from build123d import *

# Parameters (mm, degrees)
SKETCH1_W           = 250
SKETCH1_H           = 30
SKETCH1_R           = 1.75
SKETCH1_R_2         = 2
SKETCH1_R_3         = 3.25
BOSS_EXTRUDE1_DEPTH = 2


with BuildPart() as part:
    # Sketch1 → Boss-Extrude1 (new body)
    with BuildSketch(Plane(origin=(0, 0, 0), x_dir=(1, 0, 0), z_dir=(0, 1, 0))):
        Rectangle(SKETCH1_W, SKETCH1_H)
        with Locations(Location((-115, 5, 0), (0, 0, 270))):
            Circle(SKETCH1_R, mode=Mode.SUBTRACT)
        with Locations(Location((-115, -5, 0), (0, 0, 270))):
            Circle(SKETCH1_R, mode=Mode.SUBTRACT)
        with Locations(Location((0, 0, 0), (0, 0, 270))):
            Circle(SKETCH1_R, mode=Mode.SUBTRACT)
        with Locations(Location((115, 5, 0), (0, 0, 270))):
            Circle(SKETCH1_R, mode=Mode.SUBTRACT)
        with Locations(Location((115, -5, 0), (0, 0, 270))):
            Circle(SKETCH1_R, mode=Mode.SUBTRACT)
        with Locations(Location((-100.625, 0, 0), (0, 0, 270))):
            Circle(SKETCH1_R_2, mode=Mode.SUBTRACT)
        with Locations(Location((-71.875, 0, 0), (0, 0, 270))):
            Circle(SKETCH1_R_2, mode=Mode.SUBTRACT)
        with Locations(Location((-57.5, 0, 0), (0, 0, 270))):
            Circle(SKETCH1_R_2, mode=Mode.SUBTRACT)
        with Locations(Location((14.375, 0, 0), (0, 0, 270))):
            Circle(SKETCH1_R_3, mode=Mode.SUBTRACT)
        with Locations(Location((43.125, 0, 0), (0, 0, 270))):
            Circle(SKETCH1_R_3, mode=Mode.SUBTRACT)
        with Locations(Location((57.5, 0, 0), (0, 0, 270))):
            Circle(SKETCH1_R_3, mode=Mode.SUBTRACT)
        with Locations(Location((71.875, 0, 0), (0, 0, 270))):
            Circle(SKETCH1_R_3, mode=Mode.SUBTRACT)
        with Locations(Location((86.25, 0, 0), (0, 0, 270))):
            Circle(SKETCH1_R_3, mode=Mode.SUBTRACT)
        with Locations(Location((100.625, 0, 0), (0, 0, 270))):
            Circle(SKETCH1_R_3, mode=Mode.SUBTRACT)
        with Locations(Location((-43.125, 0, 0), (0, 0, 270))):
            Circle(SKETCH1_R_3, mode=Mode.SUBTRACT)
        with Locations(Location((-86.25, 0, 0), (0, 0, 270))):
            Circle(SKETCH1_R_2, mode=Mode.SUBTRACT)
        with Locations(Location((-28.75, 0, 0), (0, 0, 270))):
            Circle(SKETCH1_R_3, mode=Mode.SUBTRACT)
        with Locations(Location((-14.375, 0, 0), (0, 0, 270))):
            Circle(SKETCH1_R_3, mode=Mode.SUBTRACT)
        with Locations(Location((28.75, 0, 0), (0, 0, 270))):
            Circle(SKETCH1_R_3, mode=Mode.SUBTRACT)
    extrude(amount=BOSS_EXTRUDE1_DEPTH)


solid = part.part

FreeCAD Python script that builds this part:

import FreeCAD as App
import Part
import Sketcher
from FreeCAD import Vector

doc = App.newDocument("Part")
body = doc.addObject("PartDesign::Body", "Body")

sketch1 = body.newObject("Sketcher::SketchObject", "Sketch")
sketch1.AttachmentSupport = (doc.getObject("XZ_Plane"), [""])
sketch1.MapMode = "FlatFace"
sketch1.addGeometry(Part.LineSegment(Vector(-125, -15, 0), Vector(-125, 15, 0)), False)
sketch1.addGeometry(Part.LineSegment(Vector(-125, 15, 0), Vector(125, 15, 0)), False)
sketch1.addGeometry(Part.LineSegment(Vector(125, 15, 0), Vector(125, -15, 0)), False)
sketch1.addGeometry(Part.LineSegment(Vector(125, -15, 0), Vector(-125, -15, 0)), False)
sketch1.addGeometry(Part.Circle(Vector(-115, 5, 0), Vector(0, 0, 1), 1.8), False)
sketch1.addGeometry(Part.Circle(Vector(115, 5, 0), Vector(0, 0, 1), 1.8), False)
sketch1.addGeometry(Part.Circle(Vector(-100.6, 0, 0), Vector(0, 0, 1), 2), False)
sketch1.addGeometry(Part.Circle(Vector(-86.2, 0, 0), Vector(0, 0, 1), 2), False)
sketch1.addGeometry(Part.Circle(Vector(-71.9, 0, 0), Vector(0, 0, 1), 2), False)
sketch1.addGeometry(Part.Circle(Vector(-57.5, 0, 0), Vector(0, 0, 1), 2), False)
sketch1.addGeometry(Part.Circle(Vector(-43.1, 0, 0), Vector(0, 0, 1), 3.2), False)
sketch1.addGeometry(Part.Circle(Vector(-28.8, 0, 0), Vector(0, 0, 1), 3.2), False)
sketch1.addGeometry(Part.Circle(Vector(-14.4, 0, 0), Vector(0, 0, 1), 3.2), False)
sketch1.addGeometry(Part.Circle(Vector(-115, -5, 0), Vector(0, 0, 1), 1.8), False)
sketch1.addGeometry(Part.Circle(Vector(0, 0, 0), Vector(0, 0, 1), 1.8), False)
sketch1.addGeometry(Part.Circle(Vector(14.4, 0, 0), Vector(0, 0, 1), 3.2), False)
sketch1.addGeometry(Part.Circle(Vector(28.8, 0, 0), Vector(0, 0, 1), 3.2), False)
sketch1.addGeometry(Part.Circle(Vector(43.1, 0, 0), Vector(0, 0, 1), 3.2), False)
sketch1.addGeometry(Part.Circle(Vector(57.5, 0, 0), Vector(0, 0, 1), 3.2), False)
sketch1.addGeometry(Part.Circle(Vector(71.9, 0, 0), Vector(0, 0, 1), 3.2), False)
sketch1.addGeometry(Part.Circle(Vector(86.2, 0, 0), Vector(0, 0, 1), 3.2), False)
sketch1.addGeometry(Part.Circle(Vector(100.6, 0, 0), Vector(0, 0, 1), 3.2), False)
sketch1.addGeometry(Part.Circle(Vector(115, -5, 0), Vector(0, 0, 1), 1.8), False)
sketch1.addConstraint(Sketcher.Constraint("Coincident", 0, 2, 1, 1))
sketch1.addConstraint(Sketcher.Constraint("Coincident", 1, 2, 2, 1))
sketch1.addConstraint(Sketcher.Constraint("Coincident", 2, 2, 3, 1))
sketch1.addConstraint(Sketcher.Constraint("Coincident", 3, 2, 0, 1))
sketch1.addConstraint(Sketcher.Constraint("Vertical", 0))
sketch1.addConstraint(Sketcher.Constraint("Horizontal", 1))
sketch1.addConstraint(Sketcher.Constraint("Vertical", 2))
sketch1.addConstraint(Sketcher.Constraint("Horizontal", 3))
sketch1.addConstraint(Sketcher.Constraint("Coincident", 14, 3, -1, 1))
sketch1.addConstraint(Sketcher.Constraint("Equal", 4, 5))
sketch1.addConstraint(Sketcher.Constraint("Equal", 6, 7))
sketch1.addConstraint(Sketcher.Constraint("Equal", 7, 8))
sketch1.addConstraint(Sketcher.Constraint("Equal", 8, 9))
sketch1.addConstraint(Sketcher.Constraint("Equal", 10, 11))
sketch1.addConstraint(Sketcher.Constraint("Equal", 11, 12))
sketch1.addConstraint(Sketcher.Constraint("Equal", 5, 13))
sketch1.addConstraint(Sketcher.Constraint("Equal", 13, 14))
sketch1.addConstraint(Sketcher.Constraint("Equal", 12, 15))
sketch1.addConstraint(Sketcher.Constraint("Equal", 15, 16))
sketch1.addConstraint(Sketcher.Constraint("Equal", 16, 17))
sketch1.addConstraint(Sketcher.Constraint("Equal", 17, 18))
sketch1.addConstraint(Sketcher.Constraint("Equal", 18, 19))
sketch1.addConstraint(Sketcher.Constraint("Equal", 19, 20))
sketch1.addConstraint(Sketcher.Constraint("Equal", 20, 21))
sketch1.addConstraint(Sketcher.Constraint("Equal", 14, 22))
sketch1.addConstraint(Sketcher.Constraint("Symmetric", 5, 3, 13, 3, -1, 1))
sketch1.addConstraint(Sketcher.Constraint("Symmetric", 12, 3, 15, 3, -1, 1))
sketch1.addConstraint(Sketcher.Constraint("Symmetric", 11, 3, 16, 3, -1, 1))
sketch1.addConstraint(Sketcher.Constraint("Symmetric", 10, 3, 17, 3, -1, 1))
sketch1.addConstraint(Sketcher.Constraint("Symmetric", 9, 3, 18, 3, -1, 1))
sketch1.addConstraint(Sketcher.Constraint("Symmetric", 8, 3, 19, 3, -1, 1))
sketch1.addConstraint(Sketcher.Constraint("Symmetric", 7, 3, 20, 3, -1, 1))
sketch1.addConstraint(Sketcher.Constraint("Symmetric", 6, 3, 21, 3, -1, 1))
sketch1.addConstraint(Sketcher.Constraint("Symmetric", 4, 3, 22, 3, -1, 1))
sketch1.addConstraint(Sketcher.Constraint("Symmetric", 0, 2, 2, 2, -1, 1))
sketch1.addConstraint(Sketcher.Constraint("Symmetric", 4, 3, 5, 3, -2))
sketch1.addConstraint(Sketcher.Constraint("PointOnObject", 6, 3, -1))
sketch1.addConstraint(Sketcher.Constraint("PointOnObject", 7, 3, -1))
sketch1.addConstraint(Sketcher.Constraint("PointOnObject", 8, 3, -1))
sketch1.addConstraint(Sketcher.Constraint("PointOnObject", 9, 3, -1))
sketch1.addConstraint(Sketcher.Constraint("PointOnObject", 10, 3, -1))
sketch1.addConstraint(Sketcher.Constraint("PointOnObject", 11, 3, -1))
sketch1.addConstraint(Sketcher.Constraint("PointOnObject", 12, 3, -1))
sketch1.addConstraint(Sketcher.Constraint("Diameter", 6, 4.0))
sketch1.addConstraint(Sketcher.Constraint("Diameter", 4, 3.5))
sketch1.addConstraint(Sketcher.Constraint("Diameter", 10, 6.5))
sketch1.addConstraint(Sketcher.Constraint("DistanceX", 1, 1, 1, 2, 250.0))
sketch1.addConstraint(Sketcher.Constraint("DistanceY", 0, 1, 0, 2, 30.0))
sketch1.addConstraint(Sketcher.Constraint("DistanceX", 4, 3, -1, 1, 115.0))
sketch1.addConstraint(Sketcher.Constraint("DistanceY", -1, 1, 4, 3, 5.0))
sketch1.addConstraint(Sketcher.Constraint("DistanceX", 9, 3, -1, 1, 57.5))
sketch1.addConstraint(Sketcher.Constraint("DistanceX", 6, 3, 10, 3, 57.5))
sketch1.addConstraint(Sketcher.Constraint("DistanceX", 7, 3, 11, 3, 57.5))
sketch1.addConstraint(Sketcher.Constraint("DistanceX", 8, 3, 12, 3, 57.5))
sketch1.addConstraint(Sketcher.Constraint("DistanceX", 10, 3, 15, 3, 57.5))
sketch1.addConstraint(Sketcher.Constraint("DistanceX", 11, 3, 16, 3, 57.5))
sketch1.addConstraint(Sketcher.Constraint("DistanceX", 6, 3, 8, 3, 28.75))
pad1 = body.newObject("PartDesign::Pad", "Pad")
pad1.Profile = sketch1
pad1.Length = 2
pad1.Reversed = True

doc.recompute()
